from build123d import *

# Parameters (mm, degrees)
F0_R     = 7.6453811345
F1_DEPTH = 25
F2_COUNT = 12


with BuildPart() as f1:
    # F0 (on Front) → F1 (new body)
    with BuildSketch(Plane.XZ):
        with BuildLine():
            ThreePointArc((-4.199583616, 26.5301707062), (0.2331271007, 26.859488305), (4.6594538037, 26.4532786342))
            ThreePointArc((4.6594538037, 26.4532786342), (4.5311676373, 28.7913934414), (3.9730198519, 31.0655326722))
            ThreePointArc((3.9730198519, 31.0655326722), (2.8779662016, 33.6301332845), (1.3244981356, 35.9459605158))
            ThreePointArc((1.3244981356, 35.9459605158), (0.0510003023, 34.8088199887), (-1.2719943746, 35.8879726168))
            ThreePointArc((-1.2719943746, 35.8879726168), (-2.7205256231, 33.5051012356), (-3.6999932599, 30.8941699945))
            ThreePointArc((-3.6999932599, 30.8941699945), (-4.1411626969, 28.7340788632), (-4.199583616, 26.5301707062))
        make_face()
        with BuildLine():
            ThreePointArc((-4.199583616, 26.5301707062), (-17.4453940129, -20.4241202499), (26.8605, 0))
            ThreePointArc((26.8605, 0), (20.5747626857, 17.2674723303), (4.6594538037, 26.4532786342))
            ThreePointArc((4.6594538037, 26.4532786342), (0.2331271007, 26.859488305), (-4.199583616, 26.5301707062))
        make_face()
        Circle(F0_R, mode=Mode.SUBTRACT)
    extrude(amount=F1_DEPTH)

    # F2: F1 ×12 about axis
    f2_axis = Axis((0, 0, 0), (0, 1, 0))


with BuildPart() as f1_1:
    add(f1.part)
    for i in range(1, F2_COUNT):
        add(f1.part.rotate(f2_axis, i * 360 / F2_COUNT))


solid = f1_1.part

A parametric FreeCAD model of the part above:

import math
import FreeCAD as App
import Part
import Sketcher

V = App.Vector

doc = App.newDocument("Part")
params = doc.addObject("Spreadsheet::Sheet", "Params")
for row, (alias, value) in enumerate([
    ("pad1_length", "25 mm"),
], start=1):
    params.set(f"A{row}", alias)
    params.set(f"B{row}", "=" + value)
    params.setAlias(f"B{row}", alias)

body = doc.addObject("PartDesign::Body", "Body")

# Sketch on XZ plane
sketch1 = body.newObject("Sketcher::SketchObject", "Sketch")
sketch1.AttachmentSupport = (doc.getObject("XZ_Plane"), [""])
sketch1.MapMode = "FlatFace"
sketch1.addGeometry(Part.ArcOfCircle(Part.Circle(V(-7.9, 26.9, 0), V(0, 0, 1), 12.6), math.radians(-2), math.radians(19)), False)
sketch1.addGeometry(Part.ArcOfCircle(Part.Circle(V(-10.2, 26.5, 0), V(0, 0, 1), 14.9), math.radians(18), math.radians(39)), False)
sketch1.addGeometry(Part.ArcOfCircle(Part.Circle(V(0, 36.1, 0), V(0, 0, 1), 1.3), math.radians(-170), math.radians(-8)), False)
sketch1.addGeometry(Part.ArcOfCircle(Part.Circle(V(10.7, 27, 0), V(0, 0, 1), 14.9), math.radians(143), math.radians(165)), False)
sketch1.addGeometry(Part.ArcOfCircle(Part.Circle(V(8.4, 27.3, 0), V(0, 0, 1), 12.6), math.radians(163), math.radians(183)), False)
sketch1.addGeometry(Part.ArcOfCircle(Part.Circle(V(0, 0, 0), V(0, 0, 1), 26.9), math.radians(99), math.radians(360)), False)
sketch1.addGeometry(Part.ArcOfCircle(Part.Circle(V(0, 0, 0), V(0, 0, 1), 26.9), math.radians(0), math.radians(80)), False)
sketch1.addGeometry(Part.Circle(V(0, 0, 0), V(0, 0, 1), 7.6), False)
sketch1.addConstraint(Sketcher.Constraint("Coincident", 0, 2, 1, 1))
sketch1.addConstraint(Sketcher.Constraint("Coincident", 1, 2, 2, 2))
sketch1.addConstraint(Sketcher.Constraint("Coincident", 2, 1, 3, 1))
sketch1.addConstraint(Sketcher.Constraint("Coincident", 3, 2, 4, 1))
sketch1.addConstraint(Sketcher.Constraint("Coincident", 4, 2, 5, 1))
sketch1.addConstraint(Sketcher.Constraint("Tangent", 5, 2, 6, 1))
sketch1.addConstraint(Sketcher.Constraint("Coincident", 6, 2, 0, 1))
sketch1.addConstraint(Sketcher.Constraint("Coincident", 5, 3, -1, 1))
sketch1.addConstraint(Sketcher.Constraint("Coincident", 7, 3, -1, 1))
sketch1.addConstraint(Sketcher.Constraint("Equal", 1, 3))
sketch1.addConstraint(Sketcher.Constraint("Equal", 0, 4))
sketch1.addConstraint(Sketcher.Constraint("Equal", 5, 6))
sketch1.addConstraint(Sketcher.Constraint("PointOnObject", 5, 2, -1))
sketch1.addConstraint(Sketcher.Constraint("Radius", 5, 26.8605))
sketch1.addConstraint(Sketcher.Constraint("Radius", 2, 1.31488))
sketch1.addConstraint(Sketcher.Constraint("Diameter", 7, 15.290762))
sketch1.addConstraint(Sketcher.Constraint("Radius", 0, 12.616856))
sketch1.addConstraint(Sketcher.Constraint("Radius", 1, 14.909534))
sketch1.addConstraint(Sketcher.Constraint("DistanceX", 3, 2, 2, 1, 2.427999))
sketch1.addConstraint(Sketcher.Constraint("DistanceY", 4, 2, 3, 2, 4.363999))
sketch1.addConstraint(Sketcher.Constraint("DistanceX", -1, 1, 1, 2, 1.324498))
sketch1.addConstraint(Sketcher.Constraint("DistanceY", 3, 3, 2, 3, 9.1376))
sketch1.addConstraint(Sketcher.Constraint("DistanceX", 0, 2, 4, 3, 4.420801))
sketch1.addConstraint(Sketcher.Constraint("DistanceY", 2, 1, 2, 3, 0.235399))
sketch1.addConstraint(Sketcher.Constraint("DistanceX", 1, 3, -1, 1, 10.22629))
sketch1.addConstraint(Sketcher.Constraint("DistanceY", -1, 1, 2, 3, 36.123372))
sketch1.addConstraint(Sketcher.Constraint("DistanceX", -1, 1, 3, 3, 10.688149))
sketch1.addConstraint(Sketcher.Constraint("DistanceY", -1, 1, 6, 2, 26.453279))
pad1 = body.newObject("PartDesign::Pad", "Pad")
pad1.Profile = sketch1
pad1.setExpression("Length", "Params.pad1_length")
body2 = doc.addObject("PartDesign::Body", "Body001")
doc.recompute()

body2.BaseFeature = body
doc.recompute()

body3 = doc.addObject("PartDesign::Body", "Body002")
body3.BaseFeature = body
body3.Placement = App.Placement(V(0, 0, 0), App.Rotation(V(0, 1, 0), 30))
boolean = body2.newObject("PartDesign::Boolean", "Boolean")
boolean.Type = "Fuse"
boolean.addObjects([body3])
doc.recompute()

body4 = doc.addObject("PartDesign::Body", "Body003")
body4.BaseFeature = body
body4.Placement = App.Placement(V(0, 0, 0), App.Rotation(V(0, 1, 0), 60))
boolean2 = body2.newObject("PartDesign::Boolean", "Boolean001")
boolean2.Type = "Fuse"
boolean2.addObjects([body4])
doc.recompute()

body5 = doc.addObject("PartDesign::Body", "Body004")
body5.BaseFeature = body
body5.Placement = App.Placement(V(0, 0, 0), App.Rotation(V(0, 1, 0), 90))
boolean3 = body2.newObject("PartDesign::Boolean", "Boolean002")
boolean3.Type = "Fuse"
boolean3.addObjects([body5])
doc.recompute()

body6 = doc.addObject("PartDesign::Body", "Body005")
body6.BaseFeature = body
body6.Placement = App.Placement(V(0, 0, 0), App.Rotation(V(0, 1, 0), 120))
boolean4 = body2.newObject("PartDesign::Boolean", "Boolean003")
boolean4.Type = "Fuse"
boolean4.addObjects([body6])
doc.recompute()

body7 = doc.addObject("PartDesign::Body", "Body006")
body7.BaseFeature = body
body7.Placement = App.Placement(V(0, 0, 0), App.Rotation(V(0, 1, 0), 150))
boolean5 = body2.newObject("PartDesign::Boolean", "Boolean004")
boolean5.Type = "Fuse"
boolean5.addObjects([body7])
doc.recompute()

body8 = doc.addObject("PartDesign::Body", "Body007")
body8.BaseFeature = body
body8.Placement = App.Placement(V(0, 0, 0), App.Rotation(V(0, 1, 0), 180))
boolean6 = body2.newObject("PartDesign::Boolean", "Boolean005")
boolean6.Type = "Fuse"
boolean6.addObjects([body8])
doc.recompute()

body9 = doc.addObject("PartDesign::Body", "Body008")
body9.BaseFeature = body
body9.Placement = App.Placement(V(0, 0, 0), App.Rotation(V(0, 1, 0), 210))
boolean7 = body2.newObject("PartDesign::Boolean", "Boolean006")
boolean7.Type = "Fuse"
boolean7.addObjects([body9])
doc.recompute()

body10 = doc.addObject("PartDesign::Body", "Body009")
body10.BaseFeature = body
body10.Placement = App.Placement(V(0, 0, 0), App.Rotation(V(0, 1, 0), 240))
boolean8 = body2.newObject("PartDesign::Boolean", "Boolean007")
boolean8.Type = "Fuse"
boolean8.addObjects([body10])
doc.recompute()

body11 = doc.addObject("PartDesign::Body", "Body010")
body11.BaseFeature = body
body11.Placement = App.Placement(V(0, 0, 0), App.Rotation(V(0, 1, 0), 270))
boolean9 = body2.newObject("PartDesign::Boolean", "Boolean008")
boolean9.Type = "Fuse"
boolean9.addObjects([body11])
doc.recompute()

body12 = doc.addObject("PartDesign::Body", "Body011")
body12.BaseFeature = body
body12.Placement = App.Placement(V(0, 0, 0), App.Rotation(V(0, 1, 0), 300))
boolean10 = body2.newObject("PartDesign::Boolean", "Boolean009")
boolean10.Type = "Fuse"
boolean10.addObjects([body12])
doc.recompute()

body.Placement = App.Placement(V(0, 0, 0), App.Rotation(V(0, 1, 0), 330))
boolean11 = body2.newObject("PartDesign::Boolean", "Boolean010")
boolean11.Type = "Fuse"
boolean11.addObjects([body])

doc.recompute()
